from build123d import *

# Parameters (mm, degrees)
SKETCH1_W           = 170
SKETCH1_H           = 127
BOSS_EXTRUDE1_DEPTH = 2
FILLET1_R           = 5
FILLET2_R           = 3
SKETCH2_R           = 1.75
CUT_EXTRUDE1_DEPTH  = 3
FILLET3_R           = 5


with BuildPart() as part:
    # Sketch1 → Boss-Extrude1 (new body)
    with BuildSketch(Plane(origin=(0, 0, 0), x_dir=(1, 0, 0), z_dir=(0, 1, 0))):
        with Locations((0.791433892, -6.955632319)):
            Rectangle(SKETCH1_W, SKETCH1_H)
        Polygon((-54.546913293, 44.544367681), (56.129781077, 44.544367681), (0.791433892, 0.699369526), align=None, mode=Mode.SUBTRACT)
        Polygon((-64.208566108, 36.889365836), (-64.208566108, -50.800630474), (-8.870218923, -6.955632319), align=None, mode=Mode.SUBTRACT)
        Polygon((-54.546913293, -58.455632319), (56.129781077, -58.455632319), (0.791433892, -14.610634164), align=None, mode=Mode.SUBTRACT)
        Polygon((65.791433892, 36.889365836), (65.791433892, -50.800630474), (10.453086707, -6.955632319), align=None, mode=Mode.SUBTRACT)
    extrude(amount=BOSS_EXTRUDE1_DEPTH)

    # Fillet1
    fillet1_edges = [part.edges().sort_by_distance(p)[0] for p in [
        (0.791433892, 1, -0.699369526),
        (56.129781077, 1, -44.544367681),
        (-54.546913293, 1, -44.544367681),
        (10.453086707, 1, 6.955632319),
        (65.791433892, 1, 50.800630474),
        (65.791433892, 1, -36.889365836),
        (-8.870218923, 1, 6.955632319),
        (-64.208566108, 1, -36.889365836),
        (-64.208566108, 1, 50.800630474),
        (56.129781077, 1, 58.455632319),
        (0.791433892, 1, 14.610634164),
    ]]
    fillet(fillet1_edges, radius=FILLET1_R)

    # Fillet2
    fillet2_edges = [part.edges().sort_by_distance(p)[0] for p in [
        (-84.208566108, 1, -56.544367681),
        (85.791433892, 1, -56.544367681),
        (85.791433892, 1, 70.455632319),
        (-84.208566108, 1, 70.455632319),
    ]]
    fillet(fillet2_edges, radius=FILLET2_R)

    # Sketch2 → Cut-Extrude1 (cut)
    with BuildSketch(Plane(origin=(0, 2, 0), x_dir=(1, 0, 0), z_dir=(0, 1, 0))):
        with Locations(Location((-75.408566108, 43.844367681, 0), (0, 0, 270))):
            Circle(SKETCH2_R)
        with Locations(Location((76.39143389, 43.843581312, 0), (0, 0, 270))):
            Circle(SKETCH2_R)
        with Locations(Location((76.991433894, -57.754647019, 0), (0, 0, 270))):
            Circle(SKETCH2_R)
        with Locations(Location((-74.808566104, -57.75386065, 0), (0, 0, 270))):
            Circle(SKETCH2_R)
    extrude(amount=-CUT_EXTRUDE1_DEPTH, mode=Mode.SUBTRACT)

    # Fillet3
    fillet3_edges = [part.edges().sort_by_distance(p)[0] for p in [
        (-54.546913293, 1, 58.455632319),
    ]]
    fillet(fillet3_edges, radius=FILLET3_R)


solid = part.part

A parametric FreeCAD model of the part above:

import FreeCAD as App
import Part
import Sketcher
from FreeCAD import Vector


def edges_at(feature, points):
    """Names of the edges that pass closest to the given points."""
    edges = feature.Shape.Edges
    near = lambda p: min(range(len(edges)), key=lambda i: edges[i].distToShape(Part.Vertex(*p))[0])
    return sorted({f"Edge{near(p) + 1}" for p in points})

doc = App.newDocument("Part")
body = doc.addObject("PartDesign::Body", "Body")

# Sketch on XZ plane
sketch1 = doc.addObject("Sketcher::SketchObject", "Sketch")
body.addObject(sketch1)
sketch1.AttachmentSupport = (doc.XZ_Plane, [""])
sketch1.MapMode = "FlatFace"
sketch1.addGeometry([
    Part.LineSegment(Vector(-84.208566, -56.544368, 0), Vector(-84.208566, 70.455632, 0)),  # 0
    Part.LineSegment(Vector(-84.208566, 70.455632, 0), Vector(85.791434, 70.455632, 0)),  # 1
    Part.LineSegment(Vector(85.791434, 70.455632, 0), Vector(85.791434, -56.544368, 0)),  # 2
    Part.LineSegment(Vector(85.791434, -56.544368, 0), Vector(-84.208566, -56.544368, 0)),  # 3
    Part.LineSegment(Vector(-64.208566, 50.80063, 0), Vector(-64.208566, -36.889366, 0)),  # 4
    Part.LineSegment(Vector(-64.208566, -36.889366, 0), Vector(-8.870219, 6.955632, 0)),  # 5
    Part.LineSegment(Vector(-8.870219, 6.955632, 0), Vector(-64.208566, 50.80063, 0)),  # 6
    Part.LineSegment(Vector(56.129781, 58.455632, 0), Vector(-54.546913, 58.455632, 0)),  # 7
    Part.LineSegment(Vector(-54.546913, 58.455632, 0), Vector(0.791434, 14.610634, 0)),  # 8
    Part.LineSegment(Vector(0.791434, 14.610634, 0), Vector(56.129781, 58.455632, 0)),  # 9
    Part.LineSegment(Vector(10.453087, 6.955632, 0), Vector(65.791434, -36.889366, 0)),  # 10
    Part.LineSegment(Vector(65.791434, -36.889366, 0), Vector(65.791434, 50.80063, 0)),  # 11
    Part.LineSegment(Vector(65.791434, 50.80063, 0), Vector(10.453087, 6.955632, 0)),  # 12
    Part.LineSegment(Vector(0.791434, -0.69937, 0), Vector(-54.546913, -44.544368, 0)),  # 13
    Part.LineSegment(Vector(-54.546913, -44.544368, 0), Vector(56.129781, -44.544368, 0)),  # 14
    Part.LineSegment(Vector(56.129781, -44.544368, 0), Vector(0.791434, -0.69937, 0)),  # 15
], False)
sketch1.addConstraint([
    Sketcher.Constraint("Coincident", 0, 2, 1, 1),
    Sketcher.Constraint("Coincident", 1, 2, 2, 1),
    Sketcher.Constraint("Coincident", 2, 2, 3, 1),
    Sketcher.Constraint("Coincident", 3, 2, 0, 1),
    Sketcher.Constraint("Coincident", 4, 2, 5, 1),
    Sketcher.Constraint("Coincident", 5, 2, 6, 1),
    Sketcher.Constraint("Coincident", 6, 2, 4, 1),
    Sketcher.Constraint("Coincident", 7, 2, 8, 1),
    Sketcher.Constraint("Coincident", 8, 2, 9, 1),
    Sketcher.Constraint("Coincident", 9, 2, 7, 1),
    Sketcher.Constraint("Coincident", 10, 2, 11, 1),
    Sketcher.Constraint("Coincident", 11, 2, 12, 1),
    Sketcher.Constraint("Coincident", 12, 2, 10, 1),
    Sketcher.Constraint("Coincident", 13, 2, 14, 1),
    Sketcher.Constraint("Coincident", 14, 2, 15, 1),
    Sketcher.Constraint("Coincident", 15, 2, 13, 1),
    Sketcher.Constraint("Vertical", 0),
    Sketcher.Constraint("Horizontal", 1),
    Sketcher.Constraint("Vertical", 2),
    Sketcher.Constraint("Horizontal", 3),
    Sketcher.Constraint("Vertical", 4),
    Sketcher.Constraint("Horizontal", 7),
    Sketcher.Constraint("Vertical", 11),
    Sketcher.Constraint("Horizontal", 14),
    Sketcher.Constraint("Parallel", 6, 8),
    Sketcher.Constraint("Parallel", 5, 9),
    Sketcher.Constraint("Parallel", 8, 10),
    Sketcher.Constraint("Parallel", 9, 12),
    Sketcher.Constraint("Parallel", 12, 13),
    Sketcher.Constraint("Parallel", 10, 15),
    Sketcher.Constraint("Horizontal", 4, 2, 10, 2),
    Sketcher.Constraint("Horizontal", 6, 2, 11, 2),
    Sketcher.Constraint("Horizontal", 5, 2, 12, 2),
    Sketcher.Constraint("Vertical", 7, 2, 13, 2),
    Sketcher.Constraint("Vertical", 9, 2, 14, 2),
    Sketcher.Constraint("Equal", 6, 8),
    Sketcher.Constraint("DistanceX", 1, 1, 1, 2, 170.0),
    Sketcher.Constraint("DistanceY", 0, 1, 0, 2, 127.0),
    Sketcher.Constraint("DistanceX", 3, 2, 4, 2, 20.0),
    Sketcher.Constraint("DistanceY", 7, 2, 0, 2, 12.0),
    Sketcher.Constraint("DistanceX", 6, 2, 8, 2, 65.0),
    Sketcher.Constraint("DistanceX", 10, 2, 2, 2, 20.0),
    Sketcher.Constraint("DistanceY", 3, 2, 13, 2, 12.0),
    Sketcher.Constraint("DistanceY", 5, 2, 0, 2, 63.5),
    Sketcher.Constraint("DistanceY", 3, 2, 4, 2, 19.655002),
    Sketcher.Constraint("DistanceX", 7, 2, 7, 1, 110.676694),
    Sketcher.Constraint("DistanceX", 5, 2, -1, 1, 8.870219),
    Sketcher.Constraint("DistanceY", -1, 1, 6, 2, 50.80063),
])
pad1 = doc.addObject("PartDesign::Pad", "Pad")
body.addObject(pad1)
pad1.Profile = sketch1
pad1.Length = 2
pad1.Reversed = True
doc.recompute()

fillet = doc.addObject("PartDesign::Fillet", "Fillet")
body.addObject(fillet)
fillet.Base = (pad1, edges_at(pad1, [
    (0.791, 1, -0.699),
    (56.13, 1, -44.544),
    (-54.547, 1, -44.544),
    (10.453, 1, 6.956),
    (65.791, 1, 50.801),
    (65.791, 1, -36.889),
    (-8.87, 1, 6.956),
    (-64.209, 1, -36.889),
    (-64.209, 1, 50.801),
    (56.13, 1, 58.456),
    (0.791, 1, 14.611),
]))
fillet.Radius = 5
doc.recompute()

fillet2 = doc.addObject("PartDesign::Fillet", "Fillet001")
body.addObject(fillet2)
fillet2.Base = (fillet, edges_at(fillet, [
    (-84.209, 1, -56.544),
    (85.791, 1, -56.544),
    (85.791, 1, 70.456),
    (-84.209, 1, 70.456),
]))
fillet2.Radius = 3

# Sketch on XZ plane
sketch2 = doc.addObject("Sketcher::SketchObject", "Sketch001")
body.addObject(sketch2)
sketch2.AttachmentSupport = (doc.XZ_Plane, [""])
sketch2.MapMode = "FlatFace"
sketch2.AttachmentOffset = App.Placement(Vector(0, 0, -2), App.Rotation())
sketch2.addGeometry([
    Part.Circle(Vector(-75.408566, -43.844368, 0), Vector(0, 0, 1), 1.75),
    Part.Circle(Vector(76.391434, -43.843581, 0), Vector(0, 0, 1), 1.75),
    Part.Circle(Vector(76.991434, 57.754647, 0), Vector(0, 0, 1), 1.75),
    Part.Circle(Vector(-74.808566, 57.753861, 0), Vector(0, 0, 1), 1.75),
], False)
sketch2.addConstraint([
    Sketcher.Constraint("Equal", 0, 1),
    Sketcher.Constraint("Equal", 1, 2),
    Sketcher.Constraint("Equal", 2, 3),
    Sketcher.Constraint("Diameter", 0, 3.5),
    Sketcher.Constraint("DistanceX", 0, 3, 1, 3, 151.8),
    Sketcher.Constraint("DistanceX", 1, 3, 2, 3, 0.6),
    Sketcher.Constraint("DistanceX", 0, 3, 3, 3, 0.6),
    Sketcher.Constraint("DistanceY", 1, 3, -1, 1, 43.843581),
    Sketcher.Constraint("DistanceY", -1, 1, 3, 3, 57.753861),
    Sketcher.Constraint("DistanceY", 1, 3, 2, 3, 101.598228),
    Sketcher.Constraint("DistanceY", 0, 3, 3, 3, 101.598228),
    Sketcher.Constraint("DistanceX", 0, 3, -1, 1, 75.408566),
])
pocket1 = doc.addObject("PartDesign::Pocket", "Pocket")
body.addObject(pocket1)
pocket1.Profile = sketch2
pocket1.Length = 3
pocket1.Reversed = True
doc.recompute()

fillet3 = doc.addObject("PartDesign::Fillet", "Fillet002")
body.addObject(fillet3)
fillet3.Base = (pocket1, edges_at(pocket1, [(-54.547, 1, 58.456)]))
fillet3.Radius = 5

doc.recompute()
